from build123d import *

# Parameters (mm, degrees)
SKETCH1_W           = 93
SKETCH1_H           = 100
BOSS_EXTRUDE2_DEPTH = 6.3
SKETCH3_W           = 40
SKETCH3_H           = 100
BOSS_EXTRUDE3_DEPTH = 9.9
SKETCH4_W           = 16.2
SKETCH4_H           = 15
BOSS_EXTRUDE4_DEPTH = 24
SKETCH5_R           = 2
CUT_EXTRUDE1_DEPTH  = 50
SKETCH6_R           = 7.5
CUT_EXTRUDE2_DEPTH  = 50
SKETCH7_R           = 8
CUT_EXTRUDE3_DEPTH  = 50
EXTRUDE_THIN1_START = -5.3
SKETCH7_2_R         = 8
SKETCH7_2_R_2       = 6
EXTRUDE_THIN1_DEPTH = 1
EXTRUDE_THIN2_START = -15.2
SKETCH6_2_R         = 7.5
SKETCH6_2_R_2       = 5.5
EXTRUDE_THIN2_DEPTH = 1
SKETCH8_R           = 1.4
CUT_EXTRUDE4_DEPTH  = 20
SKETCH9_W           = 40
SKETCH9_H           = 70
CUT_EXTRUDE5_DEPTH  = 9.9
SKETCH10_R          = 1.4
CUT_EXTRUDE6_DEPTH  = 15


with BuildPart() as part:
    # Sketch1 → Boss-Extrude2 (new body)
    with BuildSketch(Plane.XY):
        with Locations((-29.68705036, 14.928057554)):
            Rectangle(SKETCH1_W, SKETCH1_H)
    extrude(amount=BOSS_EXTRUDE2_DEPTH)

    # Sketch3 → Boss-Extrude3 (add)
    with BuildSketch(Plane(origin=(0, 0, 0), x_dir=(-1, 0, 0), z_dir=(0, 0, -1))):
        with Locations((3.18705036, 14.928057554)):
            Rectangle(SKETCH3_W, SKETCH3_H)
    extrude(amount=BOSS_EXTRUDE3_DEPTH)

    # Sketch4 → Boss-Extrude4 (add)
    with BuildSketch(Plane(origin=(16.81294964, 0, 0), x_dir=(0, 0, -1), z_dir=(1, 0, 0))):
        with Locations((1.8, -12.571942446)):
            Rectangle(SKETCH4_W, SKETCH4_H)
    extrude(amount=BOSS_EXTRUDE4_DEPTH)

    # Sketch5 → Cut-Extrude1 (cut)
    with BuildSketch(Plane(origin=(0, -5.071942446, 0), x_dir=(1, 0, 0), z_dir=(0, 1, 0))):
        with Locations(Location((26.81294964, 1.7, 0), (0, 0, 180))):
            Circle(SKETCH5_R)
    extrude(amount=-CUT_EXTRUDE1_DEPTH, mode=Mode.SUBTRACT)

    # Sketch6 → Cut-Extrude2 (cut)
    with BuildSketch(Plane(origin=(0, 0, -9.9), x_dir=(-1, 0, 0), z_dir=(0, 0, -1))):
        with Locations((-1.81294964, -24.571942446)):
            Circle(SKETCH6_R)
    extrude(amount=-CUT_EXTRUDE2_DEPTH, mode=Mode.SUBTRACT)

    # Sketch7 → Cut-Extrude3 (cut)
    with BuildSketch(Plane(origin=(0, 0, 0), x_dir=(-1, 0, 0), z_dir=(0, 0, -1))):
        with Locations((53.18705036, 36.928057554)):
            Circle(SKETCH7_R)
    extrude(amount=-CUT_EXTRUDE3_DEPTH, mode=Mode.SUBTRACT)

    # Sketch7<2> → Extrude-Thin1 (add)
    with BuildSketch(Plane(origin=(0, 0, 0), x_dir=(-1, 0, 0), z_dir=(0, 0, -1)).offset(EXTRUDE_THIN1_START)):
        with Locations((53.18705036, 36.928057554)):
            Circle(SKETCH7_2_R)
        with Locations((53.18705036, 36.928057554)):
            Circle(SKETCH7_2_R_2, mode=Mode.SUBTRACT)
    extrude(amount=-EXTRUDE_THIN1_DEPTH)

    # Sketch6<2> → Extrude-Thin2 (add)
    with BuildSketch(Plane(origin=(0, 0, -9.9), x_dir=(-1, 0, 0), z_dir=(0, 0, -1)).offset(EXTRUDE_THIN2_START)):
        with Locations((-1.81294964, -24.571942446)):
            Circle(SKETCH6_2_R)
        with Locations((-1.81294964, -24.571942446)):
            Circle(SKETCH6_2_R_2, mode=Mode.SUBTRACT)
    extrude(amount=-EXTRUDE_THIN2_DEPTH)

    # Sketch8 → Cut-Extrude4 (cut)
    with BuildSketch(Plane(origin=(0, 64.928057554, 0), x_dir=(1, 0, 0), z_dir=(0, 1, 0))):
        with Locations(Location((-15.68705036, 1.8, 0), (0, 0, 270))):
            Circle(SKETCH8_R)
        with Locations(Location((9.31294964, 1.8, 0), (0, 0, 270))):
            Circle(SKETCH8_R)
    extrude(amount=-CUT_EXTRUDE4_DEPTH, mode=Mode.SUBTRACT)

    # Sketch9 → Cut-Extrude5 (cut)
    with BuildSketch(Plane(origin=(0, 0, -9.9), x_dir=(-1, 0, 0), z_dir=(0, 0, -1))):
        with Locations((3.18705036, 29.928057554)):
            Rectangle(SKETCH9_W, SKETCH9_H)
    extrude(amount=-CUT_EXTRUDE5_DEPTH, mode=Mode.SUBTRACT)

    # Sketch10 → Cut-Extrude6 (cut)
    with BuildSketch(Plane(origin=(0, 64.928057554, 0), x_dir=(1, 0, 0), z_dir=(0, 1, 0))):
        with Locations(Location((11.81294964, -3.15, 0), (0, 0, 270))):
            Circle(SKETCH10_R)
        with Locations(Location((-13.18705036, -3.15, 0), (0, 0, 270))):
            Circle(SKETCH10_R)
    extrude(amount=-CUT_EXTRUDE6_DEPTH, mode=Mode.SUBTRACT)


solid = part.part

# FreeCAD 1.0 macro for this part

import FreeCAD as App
import Part
import Sketcher
from FreeCAD import Vector
Q = App.Units.Quantity


def add_polygon(sketch, points):
    """Adds a closed chain of lines whose ends are joined by coincident constraints."""
    first, n = sketch.GeometryCount, len(points)
    for a, b in zip(points, points[1:] + points[:1]):
        sketch.addGeometry(Part.LineSegment(App.Vector(*a, 0), App.Vector(*b, 0)), False)
    for i in range(n):
        sketch.addConstraint(Sketcher.Constraint("Coincident", first + i, 2, first + (i + 1) % n, 1))

doc = App.newDocument("Part")
body = doc.addObject("PartDesign::Body", "Body")

sketch1 = body.newObject("Sketcher::SketchObject", "Sketch")
sketch1.AttachmentSupport = (doc.getObject("XY_Plane"), [""])
sketch1.MapMode = "FlatFace"
add_polygon(sketch1, [(-76, 65), (-76, -35), (17, -35), (17, 65)])
sketch1.addConstraint(Sketcher.Constraint("Vertical", 0))
sketch1.addConstraint(Sketcher.Constraint("Horizontal", 1))
sketch1.addConstraint(Sketcher.Constraint("Vertical", 2))
sketch1.addConstraint(Sketcher.Constraint("Horizontal", 3))
sketch1.addConstraint(Sketcher.Constraint("DistanceX", 1, 1, 1, 2, Q("93 mm")))
sketch1.addConstraint(Sketcher.Constraint("DistanceY", 0, 2, 0, 1, Q("100 mm")))
sketch1.addConstraint(Sketcher.Constraint("DistanceX", 0, 2, -1, 1, Q("76.18705 mm")))
sketch1.addConstraint(Sketcher.Constraint("DistanceY", 0, 2, -1, 1, Q("35.071942 mm")))
pad1 = body.newObject("PartDesign::Pad", "Pad")
pad1.Profile = sketch1
pad1.Length = 6.3

sketch2 = body.newObject("Sketcher::SketchObject", "Sketch001")
sketch2.AttachmentSupport = (doc.getObject("XY_Plane"), [""])
sketch2.MapMode = "FlatFace"
add_polygon(sketch2, [(17, 65), (17, -35), (-23, -35), (-23, 65)])
sketch2.addConstraint(Sketcher.Constraint("Vertical", 0))
sketch2.addConstraint(Sketcher.Constraint("Horizontal", 1))
sketch2.addConstraint(Sketcher.Constraint("Vertical", 2))
sketch2.addConstraint(Sketcher.Constraint("Horizontal", 3))
sketch2.addConstraint(Sketcher.Constraint("DistanceX", 1, 2, 1, 1, Q("40 mm")))
sketch2.addConstraint(Sketcher.Constraint("DistanceY", 0, 2, 0, 1, Q("100 mm")))
sketch2.addConstraint(Sketcher.Constraint("DistanceX", -1, 1, 0, 2, Q("16.81295 mm")))
sketch2.addConstraint(Sketcher.Constraint("DistanceY", 0, 2, -1, 1, Q("35.071942 mm")))
pad2 = body.newObject("PartDesign::Pad", "Pad001")
pad2.Profile = sketch2
pad2.Length = 9.9
pad2.Reversed = True

sketch3 = body.newObject("Sketcher::SketchObject", "Sketch002")
sketch3.AttachmentSupport = (doc.getObject("YZ_Plane"), [""])
sketch3.MapMode = "FlatFace"
sketch3.AttachmentOffset = App.Placement(Vector(0, 0, 16.81295), App.Rotation())
add_polygon(sketch3, [(-5, 6), (-20, 6), (-20, -10), (-5, -10)])
sketch3.addConstraint(Sketcher.Constraint("Horizontal", 0))
sketch3.addConstraint(Sketcher.Constraint("Vertical", 1))
sketch3.addConstraint(Sketcher.Constraint("Horizontal", 2))
sketch3.addConstraint(Sketcher.Constraint("Vertical", 3))
sketch3.addConstraint(Sketcher.Constraint("DistanceX", 0, 2, 0, 1, Q("15 mm")))
sketch3.addConstraint(Sketcher.Constraint("DistanceY", 1, 2, 1, 1, Q("16.2 mm")))
sketch3.addConstraint(Sketcher.Constraint("DistanceY", -1, 1, 0, 2, Q("6.3 mm")))
sketch3.addConstraint(Sketcher.Constraint("DistanceX", 0, 2, -1, 1, Q("20.071942 mm")))
pad3 = body.newObject("PartDesign::Pad", "Pad002")
pad3.Profile = sketch3
pad3.Length = 24

sketch4 = body.newObject("Sketcher::SketchObject", "Sketch003")
sketch4.AttachmentSupport = (doc.getObject("XZ_Plane"), [""])
sketch4.MapMode = "FlatFace"
sketch4.AttachmentOffset = App.Placement(Vector(0, 0, 5.071942), App.Rotation())
sketch4.addGeometry(Part.Circle(Vector(26.8, -1.7, 0), Vector(0, 0, 1), 2), False)
sketch4.addConstraint(Sketcher.Constraint("Diameter", 0, Q("4 mm")))
sketch4.addConstraint(Sketcher.Constraint("DistanceY", 0, 3, -1, 1, Q("1.7 mm")))
sketch4.addConstraint(Sketcher.Constraint("DistanceX", -1, 1, 0, 3, Q("26.81295 mm")))
pocket1 = body.newObject("PartDesign::Pocket", "Pocket")
pocket1.Profile = sketch4
pocket1.Length = 50
pocket1.Reversed = True

sketch5 = body.newObject("Sketcher::SketchObject", "Sketch004")
sketch5.AttachmentSupport = (doc.getObject("XY_Plane"), [""])
sketch5.MapMode = "FlatFace"
sketch5.AttachmentOffset = App.Placement(Vector(0, 0, -9.9), App.Rotation())
sketch5.addGeometry(Part.Circle(Vector(2, -25, 0), Vector(0, 0, 1), 8), False)
sketch5.addConstraint(Sketcher.Constraint("Diameter", 0, Q("15 mm")))
sketch5.addConstraint(Sketcher.Constraint("DistanceX", -1, 1, 0, 3, Q("1.81295 mm")))
sketch5.addConstraint(Sketcher.Constraint("DistanceY", 0, 3, -1, 1, Q("24.571942 mm")))
pocket2 = body.newObject("PartDesign::Pocket", "Pocket001")
pocket2.Profile = sketch5
pocket2.Length = 50
pocket2.Reversed = True

sketch6 = body.newObject("Sketcher::SketchObject", "Sketch005")
sketch6.AttachmentSupport = (doc.getObject("XY_Plane"), [""])
sketch6.MapMode = "FlatFace"
sketch6.addGeometry(Part.Circle(Vector(-53, 37, 0), Vector(0, 0, 1), 8), False)
sketch6.addConstraint(Sketcher.Constraint("Diameter", 0, Q("16 mm")))
sketch6.addConstraint(Sketcher.Constraint("DistanceX", 0, 3, -1, 1, Q("53.18705 mm")))
sketch6.addConstraint(Sketcher.Constraint("DistanceY", -1, 1, 0, 3, Q("36.928058 mm")))
pocket3 = body.newObject("PartDesign::Pocket", "Pocket002")
pocket3.Profile = sketch6
pocket3.Length = 50
pocket3.Reversed = True

sketch7 = body.newObject("Sketcher::SketchObject", "Sketch006")
sketch7.AttachmentSupport = (doc.getObject("XY_Plane"), [""])
sketch7.MapMode = "FlatFace"
sketch7.AttachmentOffset = App.Placement(Vector(0, 0, 5.3), App.Rotation())
sketch7.addGeometry(Part.Circle(Vector(-53, 37, 0), Vector(0, 0, 1), 8), False)
sketch7.addGeometry(Part.Circle(Vector(-53, 37, 0), Vector(0, 0, 1), 6), False)
sketch7.addConstraint(Sketcher.Constraint("Coincident", 1, 3, 0, 3))
sketch7.addConstraint(Sketcher.Constraint("Diameter", 0, Q("16 mm")))
sketch7.addConstraint(Sketcher.Constraint("Diameter", 1, Q("12 mm")))
sketch7.addConstraint(Sketcher.Constraint("DistanceX", 0, 3, -1, 1, Q("53.18705 mm")))
sketch7.addConstraint(Sketcher.Constraint("DistanceY", -1, 1, 0, 3, Q("36.928058 mm")))
pad4 = body.newObject("PartDesign::Pad", "Pad003")
pad4.Profile = sketch7
pad4.Length = 1

sketch8 = body.newObject("Sketcher::SketchObject", "Sketch007")
sketch8.AttachmentSupport = (doc.getObject("XY_Plane"), [""])
sketch8.MapMode = "FlatFace"
sketch8.AttachmentOffset = App.Placement(Vector(0, 0, 5.3), App.Rotation())
sketch8.addGeometry(Part.Circle(Vector(2, -25, 0), Vector(0, 0, 1), 8), False)
sketch8.addGeometry(Part.Circle(Vector(2, -25, 0), Vector(0, 0, 1), 6), False)
sketch8.addConstraint(Sketcher.Constraint("Coincident", 1, 3, 0, 3))
sketch8.addConstraint(Sketcher.Constraint("Diameter", 0, Q("15 mm")))
sketch8.addConstraint(Sketcher.Constraint("Diameter", 1, Q("11 mm")))
sketch8.addConstraint(Sketcher.Constraint("DistanceX", -1, 1, 0, 3, Q("1.81295 mm")))
sketch8.addConstraint(Sketcher.Constraint("DistanceY", 0, 3, -1, 1, Q("24.571942 mm")))
pad5 = body.newObject("PartDesign::Pad", "Pad004")
pad5.Profile = sketch8
pad5.Length = 1

sketch9 = body.newObject("Sketcher::SketchObject", "Sketch008")
sketch9.AttachmentSupport = (doc.getObject("XZ_Plane"), [""])
sketch9.MapMode = "FlatFace"
sketch9.AttachmentOffset = App.Placement(Vector(0, 0, -64.928058), App.Rotation())
sketch9.addGeometry(Part.Circle(Vector(-15.7, -1.8, 0), Vector(0, 0, 1), 1.4), False)
sketch9.addGeometry(Part.Circle(Vector(9.3, -1.8, 0), Vector(0, 0, 1), 1.4), False)
sketch9.addConstraint(Sketcher.Constraint("Equal", 0, 1))
sketch9.addConstraint(Sketcher.Constraint("Horizontal", 0, 3, 1, 3))
sketch9.addConstraint(Sketcher.Constraint("Diameter", 0, Q("2.8 mm")))
sketch9.addConstraint(Sketcher.Constraint("DistanceX", 0, 3, 1, 3, Q("25 mm")))
sketch9.addConstraint(Sketcher.Constraint("DistanceY", 0, 3, -1, 1, Q("1.8 mm")))
sketch9.addConstraint(Sketcher.Constraint("DistanceX", 0, 3, -1, 1, Q("15.68705 mm")))
pocket4 = body.newObject("PartDesign::Pocket", "Pocket003")
pocket4.Profile = sketch9
pocket4.Length = 20
pocket4.Reversed = True

sketch10 = body.newObject("Sketcher::SketchObject", "Sketch009")
sketch10.AttachmentSupport = (doc.getObject("XY_Plane"), [""])
sketch10.MapMode = "FlatFace"
sketch10.AttachmentOffset = App.Placement(Vector(0, 0, -9.9), App.Rotation())
add_polygon(sketch10, [(17, 65), (17, -5), (-23, -5), (-23, 65)])
sketch10.addConstraint(Sketcher.Constraint("Vertical", 0))
sketch10.addConstraint(Sketcher.Constraint("Horizontal", 1))
sketch10.addConstraint(Sketcher.Constraint("Vertical", 2))
sketch10.addConstraint(Sketcher.Constraint("Horizontal", 3))
sketch10.addConstraint(Sketcher.Constraint("DistanceX", 1, 2, 1, 1, Q("40 mm")))
sketch10.addConstraint(Sketcher.Constraint("DistanceY", 0, 2, 0, 1, Q("70 mm")))
sketch10.addConstraint(Sketcher.Constraint("DistanceX", -1, 1, 0, 2, Q("16.81295 mm")))
sketch10.addConstraint(Sketcher.Constraint("DistanceY", 0, 2, -1, 1, Q("5.071942 mm")))
pocket5 = body.newObject("PartDesign::Pocket", "Pocket004")
pocket5.Profile = sketch10
pocket5.Length = 9.9
pocket5.Reversed = True

sketch11 = body.newObject("Sketcher::SketchObject", "Sketch010")
sketch11.AttachmentSupport = (doc.getObject("XZ_Plane"), [""])
sketch11.MapMode = "FlatFace"
sketch11.AttachmentOffset = App.Placement(Vector(0, 0, -64.928058), App.Rotation())
sketch11.addGeometry(Part.Circle(Vector(11.8, 3.1, 0), Vector(0, 0, 1), 1.4), False)
sketch11.addGeometry(Part.Circle(Vector(-13.2, 3.1, 0), Vector(0, 0, 1), 1.4), False)
sketch11.addConstraint(Sketcher.Constraint("Equal", 0, 1))
sketch11.addConstraint(Sketcher.Constraint("Horizontal", 0, 3, 1, 3))
sketch11.addConstraint(Sketcher.Constraint("Diameter", 0, Q("2.8 mm")))
sketch11.addConstraint(Sketcher.Constraint("DistanceX", 1, 3, 0, 3, Q("25 mm")))
sketch11.addConstraint(Sketcher.Constraint("DistanceY", -1, 1, 0, 3, Q("3.15 mm")))
sketch11.addConstraint(Sketcher.Constraint("DistanceX", -1, 1, 0, 3, Q("11.81295 mm")))
pocket6 = body.newObject("PartDesign::Pocket", "Pocket005")
pocket6.Profile = sketch11
pocket6.Length = 15
pocket6.Reversed = True

doc.recompute()
